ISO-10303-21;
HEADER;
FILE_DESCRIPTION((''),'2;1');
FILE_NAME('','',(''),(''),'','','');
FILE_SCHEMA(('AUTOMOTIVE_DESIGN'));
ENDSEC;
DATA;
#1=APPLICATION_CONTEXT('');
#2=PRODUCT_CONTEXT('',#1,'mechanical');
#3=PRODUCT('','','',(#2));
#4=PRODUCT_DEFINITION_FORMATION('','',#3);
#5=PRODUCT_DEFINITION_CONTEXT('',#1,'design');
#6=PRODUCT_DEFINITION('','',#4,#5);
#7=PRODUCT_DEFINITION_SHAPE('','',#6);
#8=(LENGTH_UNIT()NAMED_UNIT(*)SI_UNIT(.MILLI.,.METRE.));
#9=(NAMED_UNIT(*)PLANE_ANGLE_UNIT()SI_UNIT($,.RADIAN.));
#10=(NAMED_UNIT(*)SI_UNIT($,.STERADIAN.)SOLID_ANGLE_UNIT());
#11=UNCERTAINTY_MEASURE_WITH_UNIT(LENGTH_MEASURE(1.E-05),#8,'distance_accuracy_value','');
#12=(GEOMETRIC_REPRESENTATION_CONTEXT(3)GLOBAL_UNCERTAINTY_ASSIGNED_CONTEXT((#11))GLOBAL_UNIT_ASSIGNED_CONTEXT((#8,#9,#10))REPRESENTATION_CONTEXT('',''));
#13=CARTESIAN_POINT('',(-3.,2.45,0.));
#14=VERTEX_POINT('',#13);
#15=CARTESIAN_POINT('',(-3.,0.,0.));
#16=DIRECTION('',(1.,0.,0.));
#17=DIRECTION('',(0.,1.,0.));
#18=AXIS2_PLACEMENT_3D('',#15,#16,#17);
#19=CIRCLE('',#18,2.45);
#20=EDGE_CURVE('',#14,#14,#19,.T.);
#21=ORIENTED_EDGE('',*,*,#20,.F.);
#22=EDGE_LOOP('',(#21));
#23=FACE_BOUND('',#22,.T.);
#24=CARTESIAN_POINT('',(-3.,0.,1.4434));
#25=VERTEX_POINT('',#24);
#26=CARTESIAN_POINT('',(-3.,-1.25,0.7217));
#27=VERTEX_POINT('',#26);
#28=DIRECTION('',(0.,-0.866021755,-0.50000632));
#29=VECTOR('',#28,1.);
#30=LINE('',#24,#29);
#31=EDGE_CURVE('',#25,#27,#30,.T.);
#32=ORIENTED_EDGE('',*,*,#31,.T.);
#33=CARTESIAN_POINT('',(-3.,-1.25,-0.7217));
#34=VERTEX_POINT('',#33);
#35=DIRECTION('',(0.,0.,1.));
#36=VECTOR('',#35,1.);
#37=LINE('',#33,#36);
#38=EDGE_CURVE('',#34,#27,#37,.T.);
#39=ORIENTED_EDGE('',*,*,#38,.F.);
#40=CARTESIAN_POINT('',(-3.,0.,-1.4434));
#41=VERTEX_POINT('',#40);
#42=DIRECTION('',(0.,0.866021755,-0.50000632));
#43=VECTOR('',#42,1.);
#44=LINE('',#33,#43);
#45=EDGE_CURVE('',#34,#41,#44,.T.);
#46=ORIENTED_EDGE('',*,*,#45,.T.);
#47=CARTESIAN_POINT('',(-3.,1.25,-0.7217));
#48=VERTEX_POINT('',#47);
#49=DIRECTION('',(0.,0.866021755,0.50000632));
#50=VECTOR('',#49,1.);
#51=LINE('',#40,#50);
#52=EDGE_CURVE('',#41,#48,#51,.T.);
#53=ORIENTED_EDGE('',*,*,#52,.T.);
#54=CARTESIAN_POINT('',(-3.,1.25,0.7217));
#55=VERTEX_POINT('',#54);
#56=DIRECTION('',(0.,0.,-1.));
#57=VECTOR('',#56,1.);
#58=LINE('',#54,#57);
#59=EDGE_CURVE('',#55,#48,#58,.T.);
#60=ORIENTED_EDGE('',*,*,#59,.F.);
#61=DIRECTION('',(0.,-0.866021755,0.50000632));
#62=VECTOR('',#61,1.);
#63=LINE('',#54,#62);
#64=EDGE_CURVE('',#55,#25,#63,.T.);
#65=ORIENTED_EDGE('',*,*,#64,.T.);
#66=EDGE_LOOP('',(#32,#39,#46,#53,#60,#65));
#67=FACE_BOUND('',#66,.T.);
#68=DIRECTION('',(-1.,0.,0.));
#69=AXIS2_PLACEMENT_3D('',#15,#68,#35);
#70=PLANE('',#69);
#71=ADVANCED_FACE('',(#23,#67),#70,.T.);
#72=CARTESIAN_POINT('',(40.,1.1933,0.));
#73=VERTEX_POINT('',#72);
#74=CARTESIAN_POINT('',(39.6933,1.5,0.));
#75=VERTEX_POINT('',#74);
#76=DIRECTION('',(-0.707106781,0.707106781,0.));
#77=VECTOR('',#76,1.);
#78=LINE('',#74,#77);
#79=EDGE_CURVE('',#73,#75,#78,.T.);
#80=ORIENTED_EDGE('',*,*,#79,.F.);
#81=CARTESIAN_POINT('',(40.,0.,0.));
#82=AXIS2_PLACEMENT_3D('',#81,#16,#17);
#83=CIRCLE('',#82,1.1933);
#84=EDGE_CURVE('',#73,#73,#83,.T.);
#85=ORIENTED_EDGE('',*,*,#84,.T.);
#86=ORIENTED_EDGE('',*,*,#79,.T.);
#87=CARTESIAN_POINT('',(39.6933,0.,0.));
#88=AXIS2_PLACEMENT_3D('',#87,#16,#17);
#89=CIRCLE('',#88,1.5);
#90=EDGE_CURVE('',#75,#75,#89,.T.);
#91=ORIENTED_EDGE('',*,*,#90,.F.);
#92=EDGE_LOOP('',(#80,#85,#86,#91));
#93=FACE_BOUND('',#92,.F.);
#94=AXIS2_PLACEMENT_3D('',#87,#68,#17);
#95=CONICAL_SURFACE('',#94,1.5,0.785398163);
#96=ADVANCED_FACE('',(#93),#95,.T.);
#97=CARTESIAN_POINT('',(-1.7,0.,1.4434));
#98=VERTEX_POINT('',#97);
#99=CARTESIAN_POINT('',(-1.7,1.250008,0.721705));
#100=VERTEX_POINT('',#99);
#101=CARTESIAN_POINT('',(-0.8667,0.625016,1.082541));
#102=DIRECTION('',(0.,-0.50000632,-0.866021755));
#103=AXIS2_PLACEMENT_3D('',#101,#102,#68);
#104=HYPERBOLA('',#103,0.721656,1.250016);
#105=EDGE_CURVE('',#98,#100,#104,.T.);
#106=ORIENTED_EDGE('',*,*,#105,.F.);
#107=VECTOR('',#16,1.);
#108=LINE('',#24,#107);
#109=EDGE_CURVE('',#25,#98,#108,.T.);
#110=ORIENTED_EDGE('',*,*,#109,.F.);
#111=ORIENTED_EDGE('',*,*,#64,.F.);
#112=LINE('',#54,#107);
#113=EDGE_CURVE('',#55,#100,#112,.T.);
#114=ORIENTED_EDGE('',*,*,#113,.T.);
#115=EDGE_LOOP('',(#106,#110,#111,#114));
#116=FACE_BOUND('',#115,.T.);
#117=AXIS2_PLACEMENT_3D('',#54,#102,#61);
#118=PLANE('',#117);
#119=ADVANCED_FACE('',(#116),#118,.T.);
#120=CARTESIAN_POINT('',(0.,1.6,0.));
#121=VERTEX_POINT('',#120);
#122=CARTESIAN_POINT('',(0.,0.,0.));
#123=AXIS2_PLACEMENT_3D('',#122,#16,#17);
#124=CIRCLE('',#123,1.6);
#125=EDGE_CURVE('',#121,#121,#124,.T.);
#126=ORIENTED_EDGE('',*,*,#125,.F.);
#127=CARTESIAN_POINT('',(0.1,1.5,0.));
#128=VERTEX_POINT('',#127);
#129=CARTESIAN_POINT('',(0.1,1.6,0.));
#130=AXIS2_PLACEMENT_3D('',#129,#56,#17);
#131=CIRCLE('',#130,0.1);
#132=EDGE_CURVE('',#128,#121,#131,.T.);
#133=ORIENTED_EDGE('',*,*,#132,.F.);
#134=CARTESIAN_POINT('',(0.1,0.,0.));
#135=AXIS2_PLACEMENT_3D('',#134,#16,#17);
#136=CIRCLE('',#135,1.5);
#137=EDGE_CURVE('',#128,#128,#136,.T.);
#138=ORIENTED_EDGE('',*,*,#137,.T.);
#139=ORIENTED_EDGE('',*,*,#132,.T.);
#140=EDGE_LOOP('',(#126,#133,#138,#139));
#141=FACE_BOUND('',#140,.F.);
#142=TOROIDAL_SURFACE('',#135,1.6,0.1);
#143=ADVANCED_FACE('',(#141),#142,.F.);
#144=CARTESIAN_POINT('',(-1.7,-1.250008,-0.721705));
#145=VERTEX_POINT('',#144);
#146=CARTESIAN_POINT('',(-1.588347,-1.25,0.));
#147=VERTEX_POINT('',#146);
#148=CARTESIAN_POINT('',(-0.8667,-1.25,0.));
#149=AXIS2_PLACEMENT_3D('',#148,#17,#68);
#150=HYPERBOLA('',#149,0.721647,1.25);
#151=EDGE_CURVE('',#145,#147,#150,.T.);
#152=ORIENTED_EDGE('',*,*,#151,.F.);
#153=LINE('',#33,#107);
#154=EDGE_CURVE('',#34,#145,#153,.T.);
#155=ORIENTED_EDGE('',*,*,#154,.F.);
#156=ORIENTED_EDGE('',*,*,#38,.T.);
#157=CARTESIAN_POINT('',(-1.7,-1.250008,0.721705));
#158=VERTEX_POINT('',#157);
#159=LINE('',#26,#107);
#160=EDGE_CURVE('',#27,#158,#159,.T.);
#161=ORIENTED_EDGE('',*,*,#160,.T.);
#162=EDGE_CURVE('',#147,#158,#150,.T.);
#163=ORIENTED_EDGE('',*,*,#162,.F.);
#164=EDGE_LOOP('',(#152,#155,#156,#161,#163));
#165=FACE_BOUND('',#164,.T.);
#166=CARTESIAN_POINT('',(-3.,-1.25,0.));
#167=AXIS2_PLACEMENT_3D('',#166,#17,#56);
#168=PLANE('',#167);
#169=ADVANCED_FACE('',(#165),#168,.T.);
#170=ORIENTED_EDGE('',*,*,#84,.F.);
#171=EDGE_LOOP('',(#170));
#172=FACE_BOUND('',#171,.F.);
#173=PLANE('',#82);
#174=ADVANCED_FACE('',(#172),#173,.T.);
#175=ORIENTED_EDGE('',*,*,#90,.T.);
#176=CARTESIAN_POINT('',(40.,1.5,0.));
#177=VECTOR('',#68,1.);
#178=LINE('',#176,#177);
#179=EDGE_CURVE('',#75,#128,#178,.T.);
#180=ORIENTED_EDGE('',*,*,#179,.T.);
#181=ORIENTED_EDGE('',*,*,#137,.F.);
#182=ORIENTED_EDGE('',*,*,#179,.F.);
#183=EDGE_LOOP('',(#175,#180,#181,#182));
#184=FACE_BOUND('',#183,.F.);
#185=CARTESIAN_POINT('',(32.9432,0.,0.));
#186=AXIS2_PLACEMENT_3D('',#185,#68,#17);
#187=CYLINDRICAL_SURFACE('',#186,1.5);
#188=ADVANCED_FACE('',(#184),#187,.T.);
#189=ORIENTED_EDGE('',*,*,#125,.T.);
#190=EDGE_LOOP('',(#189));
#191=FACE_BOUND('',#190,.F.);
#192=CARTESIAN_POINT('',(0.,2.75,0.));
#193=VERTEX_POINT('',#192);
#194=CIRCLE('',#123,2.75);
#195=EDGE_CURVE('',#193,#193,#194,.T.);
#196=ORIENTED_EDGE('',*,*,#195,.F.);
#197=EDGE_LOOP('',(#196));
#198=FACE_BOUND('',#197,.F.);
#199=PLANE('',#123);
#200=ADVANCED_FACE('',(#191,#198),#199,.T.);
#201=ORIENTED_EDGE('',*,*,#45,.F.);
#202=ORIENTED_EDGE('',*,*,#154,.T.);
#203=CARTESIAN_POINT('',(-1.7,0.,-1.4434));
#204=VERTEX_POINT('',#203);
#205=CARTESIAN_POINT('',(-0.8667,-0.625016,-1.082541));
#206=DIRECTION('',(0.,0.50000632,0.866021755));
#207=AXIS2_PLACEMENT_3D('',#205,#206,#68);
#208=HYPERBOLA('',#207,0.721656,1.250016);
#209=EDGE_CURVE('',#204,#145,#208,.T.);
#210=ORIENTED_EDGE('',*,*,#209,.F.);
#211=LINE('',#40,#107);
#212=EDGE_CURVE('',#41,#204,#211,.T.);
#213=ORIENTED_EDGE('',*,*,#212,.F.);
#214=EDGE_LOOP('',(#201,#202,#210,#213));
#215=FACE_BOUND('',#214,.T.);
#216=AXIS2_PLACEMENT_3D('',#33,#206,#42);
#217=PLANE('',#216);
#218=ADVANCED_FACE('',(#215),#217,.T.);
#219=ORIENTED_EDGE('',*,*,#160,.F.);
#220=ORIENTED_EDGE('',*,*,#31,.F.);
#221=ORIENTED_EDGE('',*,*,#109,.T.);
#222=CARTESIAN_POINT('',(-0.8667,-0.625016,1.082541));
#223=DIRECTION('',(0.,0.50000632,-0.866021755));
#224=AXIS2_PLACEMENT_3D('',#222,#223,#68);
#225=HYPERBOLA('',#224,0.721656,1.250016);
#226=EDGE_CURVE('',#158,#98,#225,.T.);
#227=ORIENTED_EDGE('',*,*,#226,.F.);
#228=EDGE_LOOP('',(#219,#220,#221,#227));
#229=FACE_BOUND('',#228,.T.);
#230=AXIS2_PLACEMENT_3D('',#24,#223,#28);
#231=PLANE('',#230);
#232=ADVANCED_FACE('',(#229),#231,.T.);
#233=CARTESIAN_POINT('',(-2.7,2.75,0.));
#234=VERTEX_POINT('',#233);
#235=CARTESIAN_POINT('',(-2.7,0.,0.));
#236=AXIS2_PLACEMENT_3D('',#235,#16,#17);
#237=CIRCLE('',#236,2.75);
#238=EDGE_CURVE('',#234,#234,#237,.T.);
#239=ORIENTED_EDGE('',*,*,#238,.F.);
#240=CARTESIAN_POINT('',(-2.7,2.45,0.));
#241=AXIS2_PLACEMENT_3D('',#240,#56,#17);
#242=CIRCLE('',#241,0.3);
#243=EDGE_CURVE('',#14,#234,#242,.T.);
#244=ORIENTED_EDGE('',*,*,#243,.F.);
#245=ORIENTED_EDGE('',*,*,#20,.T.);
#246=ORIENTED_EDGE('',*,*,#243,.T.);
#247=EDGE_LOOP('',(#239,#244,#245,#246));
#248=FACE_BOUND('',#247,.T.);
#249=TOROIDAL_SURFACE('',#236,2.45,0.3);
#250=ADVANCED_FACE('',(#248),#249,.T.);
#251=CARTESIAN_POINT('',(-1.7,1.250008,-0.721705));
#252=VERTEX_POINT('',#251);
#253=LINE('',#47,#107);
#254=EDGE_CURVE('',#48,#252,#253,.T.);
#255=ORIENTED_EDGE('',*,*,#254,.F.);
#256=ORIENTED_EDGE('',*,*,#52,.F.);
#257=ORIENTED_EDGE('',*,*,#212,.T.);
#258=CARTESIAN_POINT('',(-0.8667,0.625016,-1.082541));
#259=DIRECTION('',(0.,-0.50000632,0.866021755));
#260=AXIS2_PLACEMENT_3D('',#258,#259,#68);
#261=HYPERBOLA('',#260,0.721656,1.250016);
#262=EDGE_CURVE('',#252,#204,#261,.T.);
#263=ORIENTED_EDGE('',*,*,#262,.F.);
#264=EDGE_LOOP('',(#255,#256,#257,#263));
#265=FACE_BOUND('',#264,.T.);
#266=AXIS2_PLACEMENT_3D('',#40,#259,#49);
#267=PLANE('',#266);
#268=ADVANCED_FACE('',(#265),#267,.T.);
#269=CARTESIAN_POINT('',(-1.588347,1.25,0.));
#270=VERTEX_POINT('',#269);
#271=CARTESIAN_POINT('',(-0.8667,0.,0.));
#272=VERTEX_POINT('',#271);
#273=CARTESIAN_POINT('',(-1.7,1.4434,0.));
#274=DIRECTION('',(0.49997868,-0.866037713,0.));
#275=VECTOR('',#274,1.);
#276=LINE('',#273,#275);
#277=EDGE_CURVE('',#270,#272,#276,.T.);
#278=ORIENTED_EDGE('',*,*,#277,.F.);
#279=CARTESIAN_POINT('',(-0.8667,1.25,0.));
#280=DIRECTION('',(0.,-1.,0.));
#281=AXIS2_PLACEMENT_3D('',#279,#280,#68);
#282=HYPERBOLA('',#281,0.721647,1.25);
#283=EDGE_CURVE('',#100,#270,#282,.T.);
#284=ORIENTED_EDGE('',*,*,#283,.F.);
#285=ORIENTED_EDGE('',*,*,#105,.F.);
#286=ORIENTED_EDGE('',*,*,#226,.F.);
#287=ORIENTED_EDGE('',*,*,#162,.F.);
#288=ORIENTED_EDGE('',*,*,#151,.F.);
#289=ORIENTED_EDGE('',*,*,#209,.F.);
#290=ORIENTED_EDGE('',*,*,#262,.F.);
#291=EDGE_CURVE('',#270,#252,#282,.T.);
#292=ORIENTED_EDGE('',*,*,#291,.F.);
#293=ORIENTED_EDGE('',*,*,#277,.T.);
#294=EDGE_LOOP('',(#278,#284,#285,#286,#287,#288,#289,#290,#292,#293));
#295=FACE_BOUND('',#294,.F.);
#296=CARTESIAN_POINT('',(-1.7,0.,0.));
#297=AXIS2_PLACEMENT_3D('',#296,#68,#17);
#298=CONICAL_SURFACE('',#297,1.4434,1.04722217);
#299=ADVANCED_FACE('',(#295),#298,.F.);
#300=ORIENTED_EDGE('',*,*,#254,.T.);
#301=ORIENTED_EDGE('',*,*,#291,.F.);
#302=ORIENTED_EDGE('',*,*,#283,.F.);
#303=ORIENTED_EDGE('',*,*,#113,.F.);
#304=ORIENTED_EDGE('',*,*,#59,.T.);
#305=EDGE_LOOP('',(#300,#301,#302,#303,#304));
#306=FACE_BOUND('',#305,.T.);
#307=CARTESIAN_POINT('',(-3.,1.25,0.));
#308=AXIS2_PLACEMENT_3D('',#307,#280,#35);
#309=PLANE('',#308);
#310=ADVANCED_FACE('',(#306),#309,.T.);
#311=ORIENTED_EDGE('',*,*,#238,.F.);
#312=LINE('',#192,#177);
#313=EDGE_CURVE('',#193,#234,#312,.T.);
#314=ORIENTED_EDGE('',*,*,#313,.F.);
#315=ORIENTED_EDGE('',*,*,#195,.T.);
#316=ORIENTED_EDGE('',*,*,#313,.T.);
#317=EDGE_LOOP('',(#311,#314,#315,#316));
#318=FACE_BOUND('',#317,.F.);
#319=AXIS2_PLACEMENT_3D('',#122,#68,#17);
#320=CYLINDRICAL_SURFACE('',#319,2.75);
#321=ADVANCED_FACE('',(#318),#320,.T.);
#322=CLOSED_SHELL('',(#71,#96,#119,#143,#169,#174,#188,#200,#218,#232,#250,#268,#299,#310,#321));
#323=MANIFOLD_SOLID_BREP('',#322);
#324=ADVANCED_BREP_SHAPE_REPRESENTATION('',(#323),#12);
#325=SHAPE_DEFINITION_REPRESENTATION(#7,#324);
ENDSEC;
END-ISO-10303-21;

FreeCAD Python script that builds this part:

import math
import FreeCAD as App
import Part
import Sketcher
from FreeCAD import Vector
Q = App.Units.Quantity


def edges_at(feature, points):
    """Names of the edges that pass closest to the given points."""
    edges = feature.Shape.Edges
    near = lambda p: min(range(len(edges)), key=lambda i: edges[i].distToShape(Part.Vertex(*p))[0])
    return sorted({f"Edge{near(p) + 1}" for p in points})


def add_polygon(sketch, points):
    """Adds a closed chain of lines whose ends are joined by coincident constraints."""
    first, n = sketch.GeometryCount, len(points)
    for a, b in zip(points, points[1:] + points[:1]):
        sketch.addGeometry(Part.LineSegment(App.Vector(*a, 0), App.Vector(*b, 0)), False)
    for i in range(n):
        sketch.addConstraint(Sketcher.Constraint("Coincident", first + i, 2, first + (i + 1) % n, 1))

doc = App.newDocument("Part")
params = doc.addObject("Spreadsheet::Sheet", "Params")
for row, (alias, value) in enumerate([
    ("sketch1_width", "40 mm"),
    ("sketch1_width2", "3 mm"),
    ("sketch1_width3", "1.3 mm"),
    ("sketch1_height", "1.5 mm"),
    ("sketch1_height2", "1.25 mm"),
    ("revolution_angle", "360 deg"),
    ("fillet_radius", "0.3 mm"),
    ("chamfer_size", "0.3067 mm"),
    ("chamfer_size2", "0.3067 mm"),
    ("fillet2_radius", "0.1 mm"),
], start=1):
    params.set(f"A{row}", alias)
    params.set(f"B{row}", "=" + value)
    params.setAlias(f"B{row}", alias)

body = doc.addObject("PartDesign::Body", "Body")

sketch1 = body.newObject("Sketcher::SketchObject", "Sketch")
sketch1.AttachmentSupport = (doc.getObject("XY_Plane"), [""])
sketch1.MapMode = "FlatFace"
add_polygon(sketch1, [(-1.7, 1.4434), (-0.8667, 0), (40, 0), (40, 1.5), (0, 1.5), (0, 2.75), (-3, 2.75), (-3, 1.4434)])
sketch1.addConstraint([
    Sketcher.Constraint("Horizontal", 1),
    Sketcher.Constraint("Vertical", 2),
    Sketcher.Constraint("Horizontal", 3),
    Sketcher.Constraint("Vertical", 4),
    Sketcher.Constraint("Horizontal", 5),
    Sketcher.Constraint("Vertical", 6),
    Sketcher.Constraint("Horizontal", 7),
    Sketcher.Constraint("PointOnObject", 0, 2, -1),
    Sketcher.Constraint("PointOnObject", 3, 2, -2),
    Sketcher.Constraint("DistanceX", 3, 2, 3, 1, Q("40 mm")),
    Sketcher.Constraint("DistanceX", 5, 2, 5, 1, Q("3 mm")),
    Sketcher.Constraint("DistanceX", 7, 1, 7, 2, Q("1.3 mm")),
    Sketcher.Constraint("DistanceY", 2, 1, 2, 2, Q("1.5 mm")),
    Sketcher.Constraint("DistanceY", 4, 1, 4, 2, Q("1.25 mm")),
    Sketcher.Constraint("DistanceX", 1, 1, 1, 2, Q("40.8667 mm")),
    Sketcher.Constraint("DistanceY", 6, 2, 6, 1, Q("1.3066 mm")),
])
sketch1.setExpression("Constraints[17]", "Params.sketch1_width")
sketch1.setExpression("Constraints[18]", "Params.sketch1_width2")
sketch1.setExpression("Constraints[19]", "Params.sketch1_width3")
sketch1.setExpression("Constraints[20]", "Params.sketch1_height")
sketch1.setExpression("Constraints[21]", "Params.sketch1_height2")
revolution = body.newObject("PartDesign::Revolution", "Revolution")
revolution.Profile = sketch1
revolution.ReferenceAxis = (sketch1, ["H_Axis"])
revolution.setExpression("Angle", "Params.revolution_angle")

sketch2 = body.newObject("Sketcher::SketchObject", "Sketch001")
sketch2.AttachmentSupport = (doc.getObject("YZ_Plane"), [""])
sketch2.MapMode = "FlatFace"
sketch2.AttachmentOffset = App.Placement(Vector(0, 0, -3), App.Rotation())
sketch2.addGeometry([
    Part.LineSegment(Vector(1.25, 0.7217, 0), Vector(0, 1.4434, 0)),
    Part.ArcOfCircle(Part.Circle(Vector(0, 0, 0), Vector(0, 0, 1), 1.4434), math.radians(30.000418), math.radians(90)),
    Part.ArcOfCircle(Part.Circle(Vector(0, 0, 0), Vector(0, 0, 1), 1.4434), math.radians(90), math.radians(149.999582)),
    Part.LineSegment(Vector(0, 1.4434, 0), Vector(-1.25, 0.7217, 0)),
    Part.ArcOfCircle(Part.Circle(Vector(0, 0, 0), Vector(0, 0, 1), 1.4434), math.radians(-30.000418), math.radians(30.000418)),
    Part.LineSegment(Vector(1.25, 0.7217, 0), Vector(1.25, -0.7217, 0)),
    Part.LineSegment(Vector(-1.25, 0.7217, 0), Vector(-1.25, -0.7217, 0)),
    Part.ArcOfCircle(Part.Circle(Vector(0, 0, 0), Vector(0, 0, 1), 1.4434), math.radians(149.999582), math.radians(210.000418)),
    Part.LineSegment(Vector(-1.25, -0.7217, 0), Vector(0, -1.4434, 0)),
    Part.ArcOfCircle(Part.Circle(Vector(0, 0, 0), Vector(0, 0, 1), 1.4434), math.radians(-149.999582), math.radians(-90)),
    Part.ArcOfCircle(Part.Circle(Vector(0, 0, 0), Vector(0, 0, 1), 1.4434), math.radians(-90), math.radians(-30.000418)),
    Part.LineSegment(Vector(0, -1.4434, 0), Vector(1.25, -0.7217, 0)),
], False)
sketch2.addConstraint([
    Sketcher.Constraint("Coincident", 0, 1, 1, 1),
    Sketcher.Constraint("Coincident", 1, 2, 0, 2),
    Sketcher.Constraint("Coincident", 2, 1, 3, 1),
    Sketcher.Constraint("Coincident", 3, 2, 2, 2),
    Sketcher.Constraint("Coincident", 4, 1, 5, 2),
    Sketcher.Constraint("Coincident", 5, 1, 4, 2),
    Sketcher.Constraint("Coincident", 6, 1, 7, 1),
    Sketcher.Constraint("Coincident", 7, 2, 6, 2),
    Sketcher.Constraint("Coincident", 8, 1, 9, 1),
    Sketcher.Constraint("Coincident", 9, 2, 8, 2),
    Sketcher.Constraint("Coincident", 10, 1, 11, 1),
    Sketcher.Constraint("Coincident", 11, 2, 10, 2),
    Sketcher.Constraint("Vertical", 5),
    Sketcher.Constraint("Vertical", 6),
    Sketcher.Constraint("Coincident", 1, 3, -1, 1),
    Sketcher.Constraint("Coincident", 2, 3, -1, 1),
    Sketcher.Constraint("Coincident", 4, 3, -1, 1),
    Sketcher.Constraint("Coincident", 7, 3, -1, 1),
    Sketcher.Constraint("Coincident", 9, 3, -1, 1),
    Sketcher.Constraint("Coincident", 10, 3, -1, 1),
    Sketcher.Constraint("Coincident", 2, 1, 1, 2),
    Sketcher.Constraint("Coincident", 5, 1, 0, 1),
    Sketcher.Constraint("Coincident", 6, 1, 3, 2),
    Sketcher.Constraint("Coincident", 8, 1, 7, 2),
    Sketcher.Constraint("Coincident", 10, 1, 9, 2),
    Sketcher.Constraint("PointOnObject", 1, 2, -2),
    Sketcher.Constraint("PointOnObject", 9, 2, -2),
    Sketcher.Constraint("Parallel", 0, 8),
    Sketcher.Constraint("Parallel", 3, 11),
    Sketcher.Constraint("Angle", 0, Q("149.9996 deg")),
    Sketcher.Constraint("Radius", 1, Q("1.4434 mm")),
])
pad1 = body.newObject("PartDesign::Pad", "Pad")
pad1.Profile = sketch2
pad1.Type = "UpToFirst"
doc.recompute()

fillet = body.newObject("PartDesign::Fillet", "Fillet")
fillet.Base = (pad1, edges_at(pad1, [(-3, -2.75, 0)]))
fillet.setExpression("Radius", "Params.fillet_radius")
doc.recompute()

chamfer = body.newObject("PartDesign::Chamfer", "Chamfer")
chamfer.Base = (fillet, edges_at(fillet, [(40, -1.5, 0)]))
chamfer.ChamferType = "Two distances"
chamfer.setExpression("Size", "Params.chamfer_size")
chamfer.setExpression("Size2", "Params.chamfer_size2")
doc.recompute()

fillet2 = body.newObject("PartDesign::Fillet", "Fillet001")
fillet2.Base = (chamfer, edges_at(chamfer, [(0, -1.5, 0)]))
fillet2.setExpression("Radius", "Params.fillet2_radius")

doc.recompute()
